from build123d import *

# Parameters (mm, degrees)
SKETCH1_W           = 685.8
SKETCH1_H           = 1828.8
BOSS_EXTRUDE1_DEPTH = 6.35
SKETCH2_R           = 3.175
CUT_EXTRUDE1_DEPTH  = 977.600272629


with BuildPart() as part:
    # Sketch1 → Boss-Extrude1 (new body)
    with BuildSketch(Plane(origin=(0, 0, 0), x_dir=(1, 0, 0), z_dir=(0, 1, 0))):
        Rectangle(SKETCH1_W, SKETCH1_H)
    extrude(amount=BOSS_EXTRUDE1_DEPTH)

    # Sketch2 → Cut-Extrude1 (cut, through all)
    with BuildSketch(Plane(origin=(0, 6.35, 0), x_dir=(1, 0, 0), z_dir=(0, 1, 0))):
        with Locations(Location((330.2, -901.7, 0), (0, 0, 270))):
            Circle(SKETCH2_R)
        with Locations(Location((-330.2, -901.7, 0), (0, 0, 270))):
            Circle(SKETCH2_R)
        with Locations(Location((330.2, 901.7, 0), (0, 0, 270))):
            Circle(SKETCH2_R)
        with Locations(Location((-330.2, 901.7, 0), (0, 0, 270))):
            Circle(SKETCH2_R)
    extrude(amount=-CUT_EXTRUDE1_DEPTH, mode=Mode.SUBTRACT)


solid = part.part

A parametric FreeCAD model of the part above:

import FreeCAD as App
import Part
import Sketcher

V = App.Vector
Q = App.Units.Quantity


def add_polygon(sketch, points):
    """Adds a closed chain of lines whose ends are joined by coincident constraints."""
    first, n = sketch.GeometryCount, len(points)
    for a, b in zip(points, points[1:] + points[:1]):
        sketch.addGeometry(Part.LineSegment(App.Vector(*a, 0), App.Vector(*b, 0)), False)
    for i in range(n):
        sketch.addConstraint(Sketcher.Constraint("Coincident", first + i, 2, first + (i + 1) % n, 1))

doc = App.newDocument("Part")
body = doc.addObject("PartDesign::Body", "Body")

# Sketch on XZ plane
sketch1 = body.newObject("Sketcher::SketchObject", "Sketch")
sketch1.AttachmentSupport = (doc.getObject("XZ_Plane"), [""])
sketch1.MapMode = "FlatFace"
add_polygon(sketch1, [(-342.9, -914.4), (-342.9, 914.4), (342.9, 914.4), (342.9, -914.4)])  # lines 0-3
sketch1.addConstraint(Sketcher.Constraint("Vertical", 0))
sketch1.addConstraint(Sketcher.Constraint("Horizontal", 1))
sketch1.addConstraint(Sketcher.Constraint("Vertical", 2))
sketch1.addConstraint(Sketcher.Constraint("Horizontal", 3))
sketch1.addConstraint(Sketcher.Constraint("Symmetric", 0, 2, 2, 2, -1, 1))
sketch1.addConstraint(Sketcher.Constraint("DistanceX", 1, 1, 1, 2, Q("27 in")))
sketch1.addConstraint(Sketcher.Constraint("DistanceY", 0, 1, 0, 2, Q("72 in")))
pad1 = body.newObject("PartDesign::Pad", "Pad")
pad1.Profile = sketch1
pad1.Length = Q("0.25 in")
pad1.Reversed = True

# Sketch on XZ plane
sketch2 = body.newObject("Sketcher::SketchObject", "Sketch001")
sketch2.AttachmentSupport = (doc.getObject("XZ_Plane"), [""])
sketch2.MapMode = "FlatFace"
sketch2.AttachmentOffset = App.Placement(V(0, 0, -0.25 * 25.4), App.Rotation())
sketch2.addGeometry(Part.Circle(V(330.2, 901.7, 0), V(0, 0, 1), 3.175), False)
sketch2.addGeometry(Part.Circle(V(-330.2, 901.7, 0), V(0, 0, 1), 3.175), False)
sketch2.addGeometry(Part.Circle(V(330.2, -901.7, 0), V(0, 0, 1), 3.175), False)
sketch2.addGeometry(Part.Circle(V(-330.2, -901.7, 0), V(0, 0, 1), 3.175), False)
sketch2.addConstraint(Sketcher.Constraint("Equal", 0, 1))
sketch2.addConstraint(Sketcher.Constraint("Equal", 1, 2))
sketch2.addConstraint(Sketcher.Constraint("Equal", 2, 3))
sketch2.addConstraint(Sketcher.Constraint("Symmetric", 1, 3, 2, 3, -1, 1))
sketch2.addConstraint(Sketcher.Constraint("Symmetric", 0, 3, 3, 3, -1, 1))
sketch2.addConstraint(Sketcher.Constraint("Symmetric", 0, 3, 1, 3, -2))
sketch2.addConstraint(Sketcher.Constraint("Diameter", 0, Q("0.25 in")))
sketch2.addConstraint(Sketcher.Constraint("DistanceX", -1, 1, 0, 3, Q("13 in")))
sketch2.addConstraint(Sketcher.Constraint("DistanceY", 2, 3, 0, 3, Q("71 in")))
pocket1 = body.newObject("PartDesign::Pocket", "Pocket")
pocket1.Profile = sketch2
pocket1.Type = "ThroughAll"
pocket1.Reversed = True

doc.recompute()
